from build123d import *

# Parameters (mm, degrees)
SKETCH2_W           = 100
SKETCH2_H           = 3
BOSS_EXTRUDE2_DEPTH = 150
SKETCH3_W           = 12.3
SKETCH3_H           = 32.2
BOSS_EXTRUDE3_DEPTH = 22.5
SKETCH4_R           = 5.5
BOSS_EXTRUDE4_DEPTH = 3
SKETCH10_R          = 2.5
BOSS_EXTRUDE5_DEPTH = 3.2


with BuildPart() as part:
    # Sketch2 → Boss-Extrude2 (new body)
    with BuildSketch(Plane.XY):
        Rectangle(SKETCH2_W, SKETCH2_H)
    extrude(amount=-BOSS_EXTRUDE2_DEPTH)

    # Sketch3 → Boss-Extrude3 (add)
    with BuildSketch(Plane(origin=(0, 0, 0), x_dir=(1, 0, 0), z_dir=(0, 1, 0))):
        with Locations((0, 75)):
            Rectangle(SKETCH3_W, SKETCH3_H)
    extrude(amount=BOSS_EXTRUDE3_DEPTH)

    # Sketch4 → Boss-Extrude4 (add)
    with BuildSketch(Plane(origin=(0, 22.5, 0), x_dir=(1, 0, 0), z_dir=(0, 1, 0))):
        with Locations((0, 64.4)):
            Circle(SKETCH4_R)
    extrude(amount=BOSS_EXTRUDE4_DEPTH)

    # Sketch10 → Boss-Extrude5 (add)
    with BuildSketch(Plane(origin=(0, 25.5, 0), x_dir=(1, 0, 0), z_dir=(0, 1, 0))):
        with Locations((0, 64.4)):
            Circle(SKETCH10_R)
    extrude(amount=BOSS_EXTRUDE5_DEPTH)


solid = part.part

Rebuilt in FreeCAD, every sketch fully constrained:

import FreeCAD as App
import Part
import Sketcher
from FreeCAD import Vector
Q = App.Units.Quantity

doc = App.newDocument("Part")
body = doc.addObject("PartDesign::Body", "Body")

# Sketch on XY plane
sketch1 = body.newObject("Sketcher::SketchObject", "Sketch")
sketch1.AttachmentSupport = (doc.getObject("XY_Plane"), [""])
sketch1.MapMode = "FlatFace"
sketch1.addGeometry([
    Part.LineSegment(Vector(-50, 1.5, 0), Vector(-50, -1.5, 0)),
    Part.LineSegment(Vector(-50, -1.5, 0), Vector(50, -1.5, 0)),
    Part.LineSegment(Vector(50, -1.5, 0), Vector(50, 1.5, 0)),
    Part.LineSegment(Vector(50, 1.5, 0), Vector(-50, 1.5, 0)),
], False)
sketch1.addConstraint([
    Sketcher.Constraint("Coincident", 0, 2, 1, 1),
    Sketcher.Constraint("Coincident", 1, 2, 2, 1),
    Sketcher.Constraint("Coincident", 2, 2, 3, 1),
    Sketcher.Constraint("Coincident", 3, 2, 0, 1),
    Sketcher.Constraint("Vertical", 0),
    Sketcher.Constraint("Horizontal", 1),
    Sketcher.Constraint("Vertical", 2),
    Sketcher.Constraint("Horizontal", 3),
    Sketcher.Constraint("Symmetric", 0, 2, 2, 2, -1, 1),
    Sketcher.Constraint("DistanceX", 1, 1, 1, 2, Q("100 mm")),
    Sketcher.Constraint("DistanceY", 0, 2, 0, 1, Q("3 mm")),
])
pad1 = body.newObject("PartDesign::Pad", "Pad")
pad1.Profile = sketch1
pad1.Length = 150
pad1.Reversed = True

# Sketch on XZ plane
sketch2 = body.newObject("Sketcher::SketchObject", "Sketch001")
sketch2.AttachmentSupport = (doc.getObject("XZ_Plane"), [""])
sketch2.MapMode = "FlatFace"
sketch2.addGeometry([
    Part.LineSegment(Vector(-6, -91, 0), Vector(-6, -59, 0)),
    Part.LineSegment(Vector(-6, -59, 0), Vector(6, -59, 0)),
    Part.LineSegment(Vector(6, -59, 0), Vector(6, -91, 0)),
    Part.LineSegment(Vector(6, -91, 0), Vector(-6, -91, 0)),
], False)
sketch2.addConstraint([
    Sketcher.Constraint("Coincident", 0, 2, 1, 1),
    Sketcher.Constraint("Coincident", 1, 2, 2, 1),
    Sketcher.Constraint("Coincident", 2, 2, 3, 1),
    Sketcher.Constraint("Coincident", 3, 2, 0, 1),
    Sketcher.Constraint("Vertical", 0),
    Sketcher.Constraint("Horizontal", 1),
    Sketcher.Constraint("Vertical", 2),
    Sketcher.Constraint("Horizontal", 3),
    Sketcher.Constraint("DistanceX", 1, 1, 1, 2, Q("12.3 mm")),
    Sketcher.Constraint("DistanceY", 0, 1, 0, 2, Q("32.2 mm")),
    Sketcher.Constraint("DistanceY", 0, 2, -1, 1, Q("58.9 mm")),
    Sketcher.Constraint("DistanceX", 0, 2, -1, 1, Q("6.15 mm")),
])
pad2 = body.newObject("PartDesign::Pad", "Pad001")
pad2.Profile = sketch2
pad2.Length = 22.5
pad2.Reversed = True

# Sketch on XZ plane
sketch3 = body.newObject("Sketcher::SketchObject", "Sketch002")
sketch3.AttachmentSupport = (doc.getObject("XZ_Plane"), [""])
sketch3.MapMode = "FlatFace"
sketch3.AttachmentOffset = App.Placement(Vector(0, 0, -22.5), App.Rotation())
sketch3.addGeometry(Part.Circle(Vector(0, -64, 0), Vector(0, 0, 1), 6), False)
sketch3.addConstraint([
    Sketcher.Constraint("PointOnObject", 0, 3, -2),
    Sketcher.Constraint("Diameter", 0, Q("11 mm")),
    Sketcher.Constraint("DistanceY", 0, 3, -1, 1, Q("64.4 mm")),
])
pad3 = body.newObject("PartDesign::Pad", "Pad002")
pad3.Profile = sketch3
pad3.Length = 3
pad3.Reversed = True

# Sketch on XZ plane
sketch4 = body.newObject("Sketcher::SketchObject", "Sketch003")
sketch4.AttachmentSupport = (doc.getObject("XZ_Plane"), [""])
sketch4.MapMode = "FlatFace"
sketch4.AttachmentOffset = App.Placement(Vector(0, 0, -25.5), App.Rotation())
sketch4.addGeometry(Part.Circle(Vector(0, -64.4, 0), Vector(0, 0, 1), 2.5), False)
sketch4.addConstraint([
    Sketcher.Constraint("PointOnObject", 0, 3, -2),
    Sketcher.Constraint("Diameter", 0, Q("5 mm")),
    Sketcher.Constraint("DistanceY", 0, 3, -1, 1, Q("64.4 mm")),
])
pad4 = body.newObject("PartDesign::Pad", "Pad003")
pad4.Profile = sketch4
pad4.Length = 3.2
pad4.Reversed = True

doc.recompute()
